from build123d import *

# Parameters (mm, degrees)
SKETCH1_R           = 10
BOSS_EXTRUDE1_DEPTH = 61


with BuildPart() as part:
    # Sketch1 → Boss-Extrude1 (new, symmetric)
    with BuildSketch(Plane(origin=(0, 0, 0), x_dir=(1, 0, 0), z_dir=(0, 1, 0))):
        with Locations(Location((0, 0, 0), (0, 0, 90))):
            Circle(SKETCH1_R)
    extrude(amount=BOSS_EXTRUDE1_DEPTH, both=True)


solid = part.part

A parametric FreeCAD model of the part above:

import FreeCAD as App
import Part
import Sketcher

doc = App.newDocument("Part")
params = doc.addObject("Spreadsheet::Sheet", "Params")
for row, (alias, value) in enumerate([
    ("sketch1_diameter", "20 mm"),
    ("pad1_length", "122 mm"),
], start=1):
    params.set(f"A{row}", alias)
    params.set(f"B{row}", "=" + value)
    params.setAlias(f"B{row}", alias)

body = doc.addObject("PartDesign::Body", "Body")

# Sketch on XZ plane
sketch1 = doc.addObject("Sketcher::SketchObject", "Sketch")
body.addObject(sketch1)
sketch1.AttachmentSupport = (doc.XZ_Plane, [""])
sketch1.MapMode = "FlatFace"
sketch1.addGeometry(Part.Circle(App.Vector(0, 0, 0), App.Vector(0, 0, 1), 10), False)
sketch1.addConstraint([
    Sketcher.Constraint("Coincident", 0, 3, -1, 1),
    Sketcher.Constraint("Diameter", 0, 20.0),
])
sketch1.setExpression("Constraints[1]", "Params.sketch1_diameter")
pad1 = doc.addObject("PartDesign::Pad", "Pad")
body.addObject(pad1)
pad1.Profile = sketch1
pad1.setExpression("Length", "Params.pad1_length")
pad1.Midplane = True

doc.recompute()
